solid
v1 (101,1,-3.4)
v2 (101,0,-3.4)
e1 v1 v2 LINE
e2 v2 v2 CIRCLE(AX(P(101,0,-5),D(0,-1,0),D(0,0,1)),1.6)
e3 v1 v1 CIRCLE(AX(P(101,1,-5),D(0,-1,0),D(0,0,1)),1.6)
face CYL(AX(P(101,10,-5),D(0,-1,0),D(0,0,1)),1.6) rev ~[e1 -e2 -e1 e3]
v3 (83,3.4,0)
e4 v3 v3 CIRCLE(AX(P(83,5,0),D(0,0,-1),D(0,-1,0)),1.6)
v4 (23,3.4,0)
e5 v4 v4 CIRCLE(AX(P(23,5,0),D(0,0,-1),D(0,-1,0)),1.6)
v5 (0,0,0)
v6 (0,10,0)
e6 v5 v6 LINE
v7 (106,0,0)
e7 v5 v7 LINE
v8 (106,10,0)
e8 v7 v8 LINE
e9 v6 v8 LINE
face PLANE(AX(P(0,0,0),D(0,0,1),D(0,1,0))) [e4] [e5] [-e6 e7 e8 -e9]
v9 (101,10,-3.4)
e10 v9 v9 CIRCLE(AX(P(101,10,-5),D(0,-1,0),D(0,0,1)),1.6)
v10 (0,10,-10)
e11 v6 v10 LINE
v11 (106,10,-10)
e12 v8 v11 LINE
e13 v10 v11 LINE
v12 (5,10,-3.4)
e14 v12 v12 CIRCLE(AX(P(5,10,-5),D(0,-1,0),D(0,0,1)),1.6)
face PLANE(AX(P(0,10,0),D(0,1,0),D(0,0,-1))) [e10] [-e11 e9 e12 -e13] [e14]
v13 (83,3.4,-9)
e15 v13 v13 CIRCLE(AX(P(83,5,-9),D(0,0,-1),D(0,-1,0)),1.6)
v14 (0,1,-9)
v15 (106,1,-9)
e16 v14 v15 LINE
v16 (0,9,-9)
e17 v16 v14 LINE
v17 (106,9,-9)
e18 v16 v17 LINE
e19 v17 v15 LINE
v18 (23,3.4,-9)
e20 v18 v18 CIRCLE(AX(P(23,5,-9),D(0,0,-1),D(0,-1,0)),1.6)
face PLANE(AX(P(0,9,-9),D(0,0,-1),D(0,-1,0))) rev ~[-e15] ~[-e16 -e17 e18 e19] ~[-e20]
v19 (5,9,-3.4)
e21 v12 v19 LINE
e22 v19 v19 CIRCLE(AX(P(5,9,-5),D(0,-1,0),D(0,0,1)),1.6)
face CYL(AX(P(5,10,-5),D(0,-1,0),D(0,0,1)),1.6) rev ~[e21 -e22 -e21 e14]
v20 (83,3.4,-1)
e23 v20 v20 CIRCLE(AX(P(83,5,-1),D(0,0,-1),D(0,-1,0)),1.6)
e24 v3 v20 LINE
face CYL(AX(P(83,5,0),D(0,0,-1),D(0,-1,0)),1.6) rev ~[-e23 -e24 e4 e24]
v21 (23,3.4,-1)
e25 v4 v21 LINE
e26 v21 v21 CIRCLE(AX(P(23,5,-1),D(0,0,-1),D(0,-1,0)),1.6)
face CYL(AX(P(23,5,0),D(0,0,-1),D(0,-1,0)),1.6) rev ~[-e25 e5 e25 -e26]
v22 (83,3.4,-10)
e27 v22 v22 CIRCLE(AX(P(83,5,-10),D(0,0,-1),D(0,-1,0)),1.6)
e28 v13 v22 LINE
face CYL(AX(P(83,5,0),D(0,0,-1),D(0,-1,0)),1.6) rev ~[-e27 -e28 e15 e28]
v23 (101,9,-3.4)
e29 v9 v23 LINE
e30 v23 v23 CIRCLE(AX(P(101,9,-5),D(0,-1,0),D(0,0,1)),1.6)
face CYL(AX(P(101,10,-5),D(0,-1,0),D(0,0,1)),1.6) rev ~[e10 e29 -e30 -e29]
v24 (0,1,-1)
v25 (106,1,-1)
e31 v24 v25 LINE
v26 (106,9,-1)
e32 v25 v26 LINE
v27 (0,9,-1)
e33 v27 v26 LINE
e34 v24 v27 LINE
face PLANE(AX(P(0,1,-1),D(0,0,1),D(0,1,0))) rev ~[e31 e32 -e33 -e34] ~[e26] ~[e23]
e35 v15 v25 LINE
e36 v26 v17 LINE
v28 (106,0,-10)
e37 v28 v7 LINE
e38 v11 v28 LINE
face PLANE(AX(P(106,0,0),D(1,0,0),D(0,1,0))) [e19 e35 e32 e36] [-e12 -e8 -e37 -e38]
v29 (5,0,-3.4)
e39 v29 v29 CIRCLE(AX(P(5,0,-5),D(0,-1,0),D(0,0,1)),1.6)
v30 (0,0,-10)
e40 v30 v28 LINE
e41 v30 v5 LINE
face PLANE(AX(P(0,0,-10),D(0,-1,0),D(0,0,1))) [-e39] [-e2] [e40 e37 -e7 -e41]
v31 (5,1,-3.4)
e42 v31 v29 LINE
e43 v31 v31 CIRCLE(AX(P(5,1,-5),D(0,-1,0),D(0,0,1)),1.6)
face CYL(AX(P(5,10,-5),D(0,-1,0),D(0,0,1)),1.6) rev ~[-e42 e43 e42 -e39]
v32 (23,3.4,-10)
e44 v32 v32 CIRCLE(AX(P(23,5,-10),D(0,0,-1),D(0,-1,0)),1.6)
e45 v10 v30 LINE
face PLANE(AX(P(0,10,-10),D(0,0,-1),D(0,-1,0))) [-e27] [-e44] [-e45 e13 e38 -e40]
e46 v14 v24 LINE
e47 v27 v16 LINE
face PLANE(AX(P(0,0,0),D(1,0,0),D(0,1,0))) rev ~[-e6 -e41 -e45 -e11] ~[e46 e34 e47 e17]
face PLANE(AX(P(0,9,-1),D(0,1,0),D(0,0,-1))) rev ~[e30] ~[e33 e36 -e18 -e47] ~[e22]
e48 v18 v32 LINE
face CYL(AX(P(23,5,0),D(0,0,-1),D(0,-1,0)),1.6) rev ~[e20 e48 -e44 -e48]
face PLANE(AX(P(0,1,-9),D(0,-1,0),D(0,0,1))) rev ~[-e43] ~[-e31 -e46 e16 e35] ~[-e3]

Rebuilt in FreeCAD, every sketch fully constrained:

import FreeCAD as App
import Part
import Sketcher
from FreeCAD import Vector
Q = App.Units.Quantity

doc = App.newDocument("Part")
body = doc.addObject("PartDesign::Body", "Body")

# Sketch on YZ plane
sketch1 = doc.addObject("Sketcher::SketchObject", "Sketch")
body.addObject(sketch1)
sketch1.AttachmentSupport = (doc.YZ_Plane, [""])
sketch1.MapMode = "FlatFace"
sketch1.addGeometry(Part.LineSegment(Vector(10, 0, 0), Vector(0, 0, 0)), False)
sketch1.addGeometry(Part.LineSegment(Vector(0, 0, 0), Vector(0, -10, 0)), False)
sketch1.addGeometry(Part.LineSegment(Vector(0, -10, 0), Vector(10, -10, 0)), False)
sketch1.addGeometry(Part.LineSegment(Vector(10, -10, 0), Vector(10, 0, 0)), False)
sketch1.addGeometry(Part.LineSegment(Vector(1, -9, 0), Vector(1, -1, 0)), False)
sketch1.addGeometry(Part.LineSegment(Vector(1, -1, 0), Vector(9, -1, 0)), False)
sketch1.addGeometry(Part.LineSegment(Vector(9, -1, 0), Vector(9, -9, 0)), False)
sketch1.addGeometry(Part.LineSegment(Vector(9, -9, 0), Vector(1, -9, 0)), False)
sketch1.addConstraint(Sketcher.Constraint("Coincident", 0, 2, 1, 1))
sketch1.addConstraint(Sketcher.Constraint("Coincident", 1, 2, 2, 1))
sketch1.addConstraint(Sketcher.Constraint("Coincident", 2, 2, 3, 1))
sketch1.addConstraint(Sketcher.Constraint("Coincident", 3, 2, 0, 1))
sketch1.addConstraint(Sketcher.Constraint("Coincident", 4, 2, 5, 1))
sketch1.addConstraint(Sketcher.Constraint("Coincident", 5, 2, 6, 1))
sketch1.addConstraint(Sketcher.Constraint("Coincident", 6, 2, 7, 1))
sketch1.addConstraint(Sketcher.Constraint("Coincident", 7, 2, 4, 1))
sketch1.addConstraint(Sketcher.Constraint("Horizontal", 0))
sketch1.addConstraint(Sketcher.Constraint("Vertical", 1))
sketch1.addConstraint(Sketcher.Constraint("Horizontal", 2))
sketch1.addConstraint(Sketcher.Constraint("Vertical", 3))
sketch1.addConstraint(Sketcher.Constraint("Vertical", 4))
sketch1.addConstraint(Sketcher.Constraint("Horizontal", 5))
sketch1.addConstraint(Sketcher.Constraint("Vertical", 6))
sketch1.addConstraint(Sketcher.Constraint("Horizontal", 7))
sketch1.addConstraint(Sketcher.Constraint("Coincident", 0, 2, -1, 1))
sketch1.addConstraint(Sketcher.Constraint("Equal", 2, 1))
sketch1.addConstraint(Sketcher.Constraint("Equal", 7, 4))
sketch1.addConstraint(Sketcher.Constraint("DistanceX", 0, 2, 0, 1, Q("10 mm")))
sketch1.addConstraint(Sketcher.Constraint("DistanceX", 5, 1, 5, 2, Q("8 mm")))
sketch1.addConstraint(Sketcher.Constraint("DistanceX", -1, 1, 4, 2, Q("1 mm")))
sketch1.addConstraint(Sketcher.Constraint("DistanceY", 4, 2, -1, 1, Q("1 mm")))
pad1 = doc.addObject("PartDesign::Pad", "Pad")
body.addObject(pad1)
pad1.Profile = sketch1
pad1.Length = 106

# Sketch on XZ plane
sketch2 = doc.addObject("Sketcher::SketchObject", "Sketch001")
body.addObject(sketch2)
sketch2.AttachmentSupport = (doc.XZ_Plane, [""])
sketch2.MapMode = "FlatFace"
sketch2.AttachmentOffset = App.Placement(Vector(0, 0, -10), App.Rotation())
sketch2.addGeometry(Part.Circle(Vector(5, -5, 0), Vector(0, 0, 1), 1.6), False)
sketch2.addGeometry(Part.Circle(Vector(101, -5, 0), Vector(0, 0, 1), 1.6), False)
sketch2.addConstraint(Sketcher.Constraint("Equal", 0, 1))
sketch2.addConstraint(Sketcher.Constraint("Horizontal", 0, 3, 1, 3))
sketch2.addConstraint(Sketcher.Constraint("Diameter", 0, Q("3.2 mm")))
sketch2.addConstraint(Sketcher.Constraint("DistanceX", -1, 1, 0, 3, Q("5 mm")))
sketch2.addConstraint(Sketcher.Constraint("DistanceY", 0, 3, -1, 1, Q("5 mm")))
sketch2.addConstraint(Sketcher.Constraint("DistanceX", -1, 1, 1, 3, Q("101 mm")))
doc.recompute()
hole = doc.addObject("PartDesign::Hole", "Hole")
body.addObject(hole)
hole.Profile = sketch2
hole.ThreadType = "None"
hole.Diameter = 3.2
hole.DepthType = "ThroughAll"
hole.Reversed = True

# Sketch on XY plane
sketch3 = doc.addObject("Sketcher::SketchObject", "Sketch002")
body.addObject(sketch3)
sketch3.AttachmentSupport = (doc.XY_Plane, [""])
sketch3.MapMode = "FlatFace"
sketch3.addGeometry(Part.Circle(Vector(23, 5, 0), Vector(0, 0, 1), 1.6), False)
sketch3.addGeometry(Part.Circle(Vector(83, 5, 0), Vector(0, 0, 1), 1.6), False)
sketch3.addConstraint(Sketcher.Constraint("Equal", 0, 1))
sketch3.addConstraint(Sketcher.Constraint("Horizontal", 0, 3, 1, 3))
sketch3.addConstraint(Sketcher.Constraint("Diameter", 0, Q("3.2 mm")))
sketch3.addConstraint(Sketcher.Constraint("DistanceX", -1, 1, 0, 3, Q("23 mm")))
sketch3.addConstraint(Sketcher.Constraint("DistanceY", -1, 1, 0, 3, Q("5 mm")))
sketch3.addConstraint(Sketcher.Constraint("DistanceX", -1, 1, 1, 3, Q("83 mm")))
doc.recompute()
hole2 = doc.addObject("PartDesign::Hole", "Hole001")
body.addObject(hole2)
hole2.Profile = sketch3
hole2.ThreadType = "None"
hole2.Diameter = 3.2
hole2.DepthType = "ThroughAll"

doc.recompute()
